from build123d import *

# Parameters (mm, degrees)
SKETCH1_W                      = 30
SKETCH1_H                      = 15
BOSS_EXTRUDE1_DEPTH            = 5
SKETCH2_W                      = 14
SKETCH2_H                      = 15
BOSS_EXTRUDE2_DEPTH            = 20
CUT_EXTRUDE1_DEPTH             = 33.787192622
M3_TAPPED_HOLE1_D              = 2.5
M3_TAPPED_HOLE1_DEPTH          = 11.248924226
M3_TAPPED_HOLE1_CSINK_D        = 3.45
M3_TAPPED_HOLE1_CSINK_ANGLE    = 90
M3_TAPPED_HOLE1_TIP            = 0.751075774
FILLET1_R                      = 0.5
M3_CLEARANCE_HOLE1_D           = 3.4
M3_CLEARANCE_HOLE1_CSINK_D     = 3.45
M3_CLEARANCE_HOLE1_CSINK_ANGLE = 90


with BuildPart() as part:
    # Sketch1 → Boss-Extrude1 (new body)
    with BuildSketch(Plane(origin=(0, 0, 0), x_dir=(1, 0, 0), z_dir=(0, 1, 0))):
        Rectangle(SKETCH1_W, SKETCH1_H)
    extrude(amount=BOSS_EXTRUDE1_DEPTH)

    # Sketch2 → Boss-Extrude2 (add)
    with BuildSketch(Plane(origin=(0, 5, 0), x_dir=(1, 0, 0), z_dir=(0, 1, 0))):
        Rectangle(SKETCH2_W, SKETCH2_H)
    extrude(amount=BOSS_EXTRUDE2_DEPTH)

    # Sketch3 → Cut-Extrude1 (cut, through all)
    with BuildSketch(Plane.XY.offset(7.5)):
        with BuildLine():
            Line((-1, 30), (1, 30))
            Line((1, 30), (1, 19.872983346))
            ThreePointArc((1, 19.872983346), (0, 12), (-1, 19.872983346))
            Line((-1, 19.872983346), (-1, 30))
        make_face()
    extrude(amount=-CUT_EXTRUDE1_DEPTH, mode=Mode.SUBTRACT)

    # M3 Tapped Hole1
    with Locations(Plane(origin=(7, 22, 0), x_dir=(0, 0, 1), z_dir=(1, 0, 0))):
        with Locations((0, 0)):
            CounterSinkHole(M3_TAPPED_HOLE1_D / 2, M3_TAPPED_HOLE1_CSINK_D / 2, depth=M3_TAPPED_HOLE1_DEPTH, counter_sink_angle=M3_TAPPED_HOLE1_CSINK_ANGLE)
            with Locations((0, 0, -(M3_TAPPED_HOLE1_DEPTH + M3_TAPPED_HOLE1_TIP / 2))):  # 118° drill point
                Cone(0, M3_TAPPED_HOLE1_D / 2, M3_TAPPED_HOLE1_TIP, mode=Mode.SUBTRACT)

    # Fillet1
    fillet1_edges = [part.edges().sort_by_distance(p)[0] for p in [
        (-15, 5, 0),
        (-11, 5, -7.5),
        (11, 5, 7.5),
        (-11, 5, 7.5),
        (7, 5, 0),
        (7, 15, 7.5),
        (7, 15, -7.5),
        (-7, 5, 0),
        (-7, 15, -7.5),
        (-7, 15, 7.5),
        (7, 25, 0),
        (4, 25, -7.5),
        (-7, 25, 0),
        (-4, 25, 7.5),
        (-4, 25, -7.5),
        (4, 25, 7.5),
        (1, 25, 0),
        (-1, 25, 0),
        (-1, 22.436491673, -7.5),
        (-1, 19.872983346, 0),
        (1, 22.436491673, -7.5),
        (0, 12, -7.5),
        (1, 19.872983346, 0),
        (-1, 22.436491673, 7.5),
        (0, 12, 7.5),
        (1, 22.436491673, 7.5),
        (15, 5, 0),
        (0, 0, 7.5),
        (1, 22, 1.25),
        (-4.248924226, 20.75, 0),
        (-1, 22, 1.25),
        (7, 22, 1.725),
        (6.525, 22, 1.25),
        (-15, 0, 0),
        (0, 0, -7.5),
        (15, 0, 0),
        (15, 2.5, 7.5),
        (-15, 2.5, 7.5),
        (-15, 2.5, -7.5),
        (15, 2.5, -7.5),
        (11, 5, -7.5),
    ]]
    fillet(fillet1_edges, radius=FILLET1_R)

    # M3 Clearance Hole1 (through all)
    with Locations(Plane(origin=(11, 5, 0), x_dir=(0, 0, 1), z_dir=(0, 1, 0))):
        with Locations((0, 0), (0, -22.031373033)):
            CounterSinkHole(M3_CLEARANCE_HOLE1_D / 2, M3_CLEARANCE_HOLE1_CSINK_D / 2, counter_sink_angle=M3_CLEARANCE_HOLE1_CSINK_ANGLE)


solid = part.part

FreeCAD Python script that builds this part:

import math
import FreeCAD as App
import Part
import Sketcher

doc = App.newDocument("Part")
params = doc.addObject("Spreadsheet::Sheet", "Params")
for row, (alias, value) in enumerate([
    ("sketch1_width", "30 mm"),
    ("sketch1_height", "15 mm"),
    ("pad1_length", "5 mm"),
    ("sketch2_width", "14 mm"),
    ("sketch2_height", "15 mm"),
    ("pad2_length", "20 mm"),
    ("sketch3_radius", "4 mm"),
    ("sketch3_width", "2 mm"),
    ("sketch4_diameter", "2.5 mm"),
    ("hole_diameter", "2.5 mm"),
    ("hole_depth", "11.248924 mm"),
    ("hole_csink_diameter", "3.45 mm"),
    ("fillet_radius", "0.5 mm"),
    ("sketch5_diameter", "3.4 mm"),
    ("hole2_diameter", "3.4 mm"),
    ("hole2_csink_diameter", "3.45 mm"),
], start=1):
    params.set(f"A{row}", alias)
    params.set(f"B{row}", "=" + value)
    params.setAlias(f"B{row}", alias)

body = doc.addObject("PartDesign::Body", "Body")

sketch1 = doc.addObject("Sketcher::SketchObject", "Sketch")
body.addObject(sketch1)
sketch1.AttachmentSupport = (doc.XZ_Plane, [""])
sketch1.MapMode = "FlatFace"
sketch1.addGeometry([
    Part.LineSegment(App.Vector(-15, -8, 0), App.Vector(-15, 8, 0)),
    Part.LineSegment(App.Vector(-15, 8, 0), App.Vector(15, 8, 0)),
    Part.LineSegment(App.Vector(15, 8, 0), App.Vector(15, -8, 0)),
    Part.LineSegment(App.Vector(15, -8, 0), App.Vector(-15, -8, 0)),
], False)
sketch1.addConstraint([
    Sketcher.Constraint("Coincident", 0, 2, 1, 1),
    Sketcher.Constraint("Coincident", 1, 2, 2, 1),
    Sketcher.Constraint("Coincident", 2, 2, 3, 1),
    Sketcher.Constraint("Coincident", 3, 2, 0, 1),
    Sketcher.Constraint("Vertical", 0),
    Sketcher.Constraint("Horizontal", 1),
    Sketcher.Constraint("Vertical", 2),
    Sketcher.Constraint("Horizontal", 3),
    Sketcher.Constraint("Symmetric", 0, 2, 2, 2, -1, 1),
    Sketcher.Constraint("DistanceX", 1, 1, 1, 2, 30.0),
    Sketcher.Constraint("DistanceY", 0, 1, 0, 2, 15.0),
])
sketch1.setExpression("Constraints[9]", "Params.sketch1_width")
sketch1.setExpression("Constraints[10]", "Params.sketch1_height")
pad1 = doc.addObject("PartDesign::Pad", "Pad")
body.addObject(pad1)
pad1.Profile = sketch1
pad1.setExpression("Length", "Params.pad1_length")
pad1.Reversed = True

sketch2 = doc.addObject("Sketcher::SketchObject", "Sketch001")
body.addObject(sketch2)
sketch2.AttachmentSupport = (doc.XZ_Plane, [""])
sketch2.MapMode = "FlatFace"
sketch2.AttachmentOffset = App.Placement(App.Vector(0, 0, -5), App.Rotation())
sketch2.addGeometry([
    Part.LineSegment(App.Vector(-7, -8, 0), App.Vector(-7, 8, 0)),
    Part.LineSegment(App.Vector(-7, 8, 0), App.Vector(7, 8, 0)),
    Part.LineSegment(App.Vector(7, 8, 0), App.Vector(7, -8, 0)),
    Part.LineSegment(App.Vector(7, -8, 0), App.Vector(-7, -8, 0)),
], False)
sketch2.addConstraint([
    Sketcher.Constraint("Coincident", 0, 2, 1, 1),
    Sketcher.Constraint("Coincident", 1, 2, 2, 1),
    Sketcher.Constraint("Coincident", 2, 2, 3, 1),
    Sketcher.Constraint("Coincident", 3, 2, 0, 1),
    Sketcher.Constraint("Vertical", 0),
    Sketcher.Constraint("Horizontal", 1),
    Sketcher.Constraint("Vertical", 2),
    Sketcher.Constraint("Horizontal", 3),
    Sketcher.Constraint("Symmetric", 0, 2, 2, 2, -1, 1),
    Sketcher.Constraint("DistanceX", 1, 1, 1, 2, 14.0),
    Sketcher.Constraint("DistanceY", 0, 1, 0, 2, 15.0),
])
sketch2.setExpression("Constraints[9]", "Params.sketch2_width")
sketch2.setExpression("Constraints[10]", "Params.sketch2_height")
pad2 = doc.addObject("PartDesign::Pad", "Pad001")
body.addObject(pad2)
pad2.Profile = sketch2
pad2.setExpression("Length", "Params.pad2_length")
pad2.Reversed = True

sketch3 = doc.addObject("Sketcher::SketchObject", "Sketch002")
body.addObject(sketch3)
sketch3.AttachmentSupport = (doc.XY_Plane, [""])
sketch3.MapMode = "FlatFace"
sketch3.AttachmentOffset = App.Placement(App.Vector(0, 0, 7.5), App.Rotation())
sketch3.addGeometry([
    Part.LineSegment(App.Vector(1, 30, 0), App.Vector(-1, 30, 0)),
    Part.LineSegment(App.Vector(-1, 30, 0), App.Vector(-1, 19.9, 0)),
    Part.ArcOfCircle(Part.Circle(App.Vector(0, 16, 0), App.Vector(0, 0, 1), 4), math.radians(104), math.radians(436)),
    Part.LineSegment(App.Vector(1, 19.9, 0), App.Vector(1, 30, 0)),
], False)
sketch3.addConstraint([
    Sketcher.Constraint("Coincident", 0, 2, 1, 1),
    Sketcher.Constraint("Coincident", 1, 2, 2, 1),
    Sketcher.Constraint("Coincident", 2, 2, 3, 1),
    Sketcher.Constraint("Coincident", 3, 2, 0, 1),
    Sketcher.Constraint("Horizontal", 0),
    Sketcher.Constraint("Vertical", 1),
    Sketcher.Constraint("Vertical", 3),
    Sketcher.Constraint("Symmetric", 1, 2, 2, 2, -2),
    Sketcher.Constraint("Radius", 2, 4.0),
    Sketcher.Constraint("DistanceX", 0, 2, 0, 1, 2.0),
    Sketcher.Constraint("DistanceY", -1, 1, 2, 3, 16.0),
    Sketcher.Constraint("DistanceY", -1, 1, 0, 2, 30.0),
])
sketch3.setExpression("Constraints[8]", "Params.sketch3_radius")
sketch3.setExpression("Constraints[9]", "Params.sketch3_width")
pocket1 = doc.addObject("PartDesign::Pocket", "Pocket")
body.addObject(pocket1)
pocket1.Profile = sketch3
pocket1.Type = "ThroughAll"

sketch4 = doc.addObject("Sketcher::SketchObject", "Sketch003")
body.addObject(sketch4)
sketch4.AttachmentSupport = (doc.YZ_Plane, [""])
sketch4.MapMode = "FlatFace"
sketch4.AttachmentOffset = App.Placement(App.Vector(0, 0, 7), App.Rotation())
sketch4.addGeometry(Part.Circle(App.Vector(22, 0, 0), App.Vector(0, 0, 1), 1.2), False)
sketch4.addConstraint([
    Sketcher.Constraint("PointOnObject", 0, 3, -1),
    Sketcher.Constraint("Diameter", 0, 2.5),
    Sketcher.Constraint("DistanceX", -1, 1, 0, 3, 22.0),
])
sketch4.setExpression("Constraints[1]", "Params.sketch4_diameter")
doc.recompute()
hole = doc.addObject("PartDesign::Hole", "Hole")
body.addObject(hole)
hole.Profile = sketch4
hole.ThreadType = "None"
hole.setExpression("Diameter", "Params.hole_diameter")
hole.DepthType = "Dimension"
hole.setExpression("Depth", "Params.hole_depth")
hole.DrillPoint = "Angled"
hole.DrillPointAngle = 118
hole.HoleCutType = "Countersink"
hole.setExpression("HoleCutDiameter", "Params.hole_csink_diameter")
hole.HoleCutCountersinkAngle = 90
doc.recompute()

fillet = doc.addObject("PartDesign::Fillet", "Fillet")
body.addObject(fillet)
fillet.Base = (hole, ["Edge1"])
fillet.UseAllEdges = True
fillet.setExpression("Radius", "Params.fillet_radius")

sketch5 = doc.addObject("Sketcher::SketchObject", "Sketch004")
body.addObject(sketch5)
sketch5.AttachmentSupport = (doc.XZ_Plane, [""])
sketch5.MapMode = "FlatFace"
sketch5.AttachmentOffset = App.Placement(App.Vector(0, 0, -5), App.Rotation())
sketch5.addGeometry([
    Part.Circle(App.Vector(11, 0, 0), App.Vector(0, 0, 1), 1.7),
    Part.Circle(App.Vector(-11, 0, 0), App.Vector(0, 0, 1), 1.7),
], False)
sketch5.addConstraint([
    Sketcher.Constraint("Equal", 0, 1),
    Sketcher.Constraint("PointOnObject", 0, 3, -1),
    Sketcher.Constraint("PointOnObject", 1, 3, -1),
    Sketcher.Constraint("Diameter", 0, 3.4),
    Sketcher.Constraint("DistanceX", -1, 1, 0, 3, 11.0),
    Sketcher.Constraint("DistanceX", 1, 3, -1, 1, 11.031373),
])
sketch5.setExpression("Constraints[3]", "Params.sketch5_diameter")
doc.recompute()
hole2 = doc.addObject("PartDesign::Hole", "Hole001")
body.addObject(hole2)
hole2.Profile = sketch5
hole2.ThreadType = "None"
hole2.setExpression("Diameter", "Params.hole2_diameter")
hole2.DepthType = "ThroughAll"
hole2.HoleCutType = "Countersink"
hole2.setExpression("HoleCutDiameter", "Params.hole2_csink_diameter")
hole2.HoleCutCountersinkAngle = 90
hole2.Reversed = True

doc.recompute()
